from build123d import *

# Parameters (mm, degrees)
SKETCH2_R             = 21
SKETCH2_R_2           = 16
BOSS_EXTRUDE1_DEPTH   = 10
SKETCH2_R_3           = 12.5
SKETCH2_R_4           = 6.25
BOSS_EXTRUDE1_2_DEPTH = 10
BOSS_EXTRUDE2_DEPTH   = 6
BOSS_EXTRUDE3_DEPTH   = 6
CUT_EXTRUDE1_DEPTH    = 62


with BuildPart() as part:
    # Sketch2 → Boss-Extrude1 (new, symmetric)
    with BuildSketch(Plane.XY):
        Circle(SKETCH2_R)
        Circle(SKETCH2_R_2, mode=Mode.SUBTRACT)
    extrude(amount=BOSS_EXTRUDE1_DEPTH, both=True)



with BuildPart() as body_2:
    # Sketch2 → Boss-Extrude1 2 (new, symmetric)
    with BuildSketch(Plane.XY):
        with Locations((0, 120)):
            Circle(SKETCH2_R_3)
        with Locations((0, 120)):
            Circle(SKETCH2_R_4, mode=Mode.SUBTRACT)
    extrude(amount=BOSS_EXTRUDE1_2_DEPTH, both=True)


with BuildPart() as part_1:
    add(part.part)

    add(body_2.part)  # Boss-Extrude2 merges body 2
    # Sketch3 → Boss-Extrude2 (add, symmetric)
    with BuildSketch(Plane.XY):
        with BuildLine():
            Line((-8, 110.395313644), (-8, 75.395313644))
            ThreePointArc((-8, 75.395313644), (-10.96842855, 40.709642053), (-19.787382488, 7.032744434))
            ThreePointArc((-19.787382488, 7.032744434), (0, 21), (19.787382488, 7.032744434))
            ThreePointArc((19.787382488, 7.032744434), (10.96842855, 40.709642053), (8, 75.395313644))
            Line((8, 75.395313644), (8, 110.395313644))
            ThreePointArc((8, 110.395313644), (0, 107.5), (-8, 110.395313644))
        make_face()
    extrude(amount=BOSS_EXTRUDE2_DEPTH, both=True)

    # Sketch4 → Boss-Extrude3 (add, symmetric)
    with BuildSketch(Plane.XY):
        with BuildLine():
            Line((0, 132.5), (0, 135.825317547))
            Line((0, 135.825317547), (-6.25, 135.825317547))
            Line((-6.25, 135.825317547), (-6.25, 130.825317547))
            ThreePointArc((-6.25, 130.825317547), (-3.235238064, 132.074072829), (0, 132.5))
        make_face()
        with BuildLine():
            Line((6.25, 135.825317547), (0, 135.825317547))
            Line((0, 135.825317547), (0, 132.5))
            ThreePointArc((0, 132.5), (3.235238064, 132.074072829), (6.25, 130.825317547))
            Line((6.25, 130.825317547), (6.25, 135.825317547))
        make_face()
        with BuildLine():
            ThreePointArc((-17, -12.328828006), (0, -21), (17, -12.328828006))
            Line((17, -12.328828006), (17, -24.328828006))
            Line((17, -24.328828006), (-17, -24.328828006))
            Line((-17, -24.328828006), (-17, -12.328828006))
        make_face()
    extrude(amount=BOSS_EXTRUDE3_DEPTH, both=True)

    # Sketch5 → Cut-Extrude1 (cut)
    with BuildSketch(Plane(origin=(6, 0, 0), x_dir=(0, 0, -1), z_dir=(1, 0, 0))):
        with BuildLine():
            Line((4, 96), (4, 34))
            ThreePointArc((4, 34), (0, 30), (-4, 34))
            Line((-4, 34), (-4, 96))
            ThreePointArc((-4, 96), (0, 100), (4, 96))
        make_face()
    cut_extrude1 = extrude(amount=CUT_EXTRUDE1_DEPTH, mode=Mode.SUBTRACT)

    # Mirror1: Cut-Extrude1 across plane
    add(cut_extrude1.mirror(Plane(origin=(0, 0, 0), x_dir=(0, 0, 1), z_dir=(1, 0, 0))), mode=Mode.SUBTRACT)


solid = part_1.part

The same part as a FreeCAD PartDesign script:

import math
import FreeCAD as App
import Part
import Sketcher

V = App.Vector
Q = App.Units.Quantity

doc = App.newDocument("Part")
body = doc.addObject("PartDesign::Body", "Body")

# Sketch on XY plane
sketch1 = body.newObject("Sketcher::SketchObject", "Sketch")
sketch1.AttachmentSupport = (doc.getObject("XY_Plane"), [""])
sketch1.MapMode = "FlatFace"
sketch1.addGeometry(Part.Circle(V(0, 0, 0), V(0, 0, 1), 21), False)
sketch1.addGeometry(Part.Circle(V(0, 0, 0), V(0, 0, 1), 16), False)
sketch1.addConstraint(Sketcher.Constraint("Coincident", 0, 3, -1, 1))
sketch1.addConstraint(Sketcher.Constraint("Coincident", 1, 3, -1, 1))
sketch1.addConstraint(Sketcher.Constraint("Diameter", 0, Q("42 mm")))
sketch1.addConstraint(Sketcher.Constraint("Diameter", 1, Q("32 mm")))
pad1 = body.newObject("PartDesign::Pad", "Pad")
pad1.Profile = sketch1
pad1.Length = 20
pad1.Midplane = True
body2 = doc.addObject("PartDesign::Body", "Body001")

# Sketch on XY plane
sketch2 = body2.newObject("Sketcher::SketchObject", "Sketch001")
sketch2.AttachmentSupport = (doc.getObject("XY_Plane001"), [""])
sketch2.MapMode = "FlatFace"
sketch2.addGeometry(Part.Circle(V(0, 120, 0), V(0, 0, 1), 12), False)
sketch2.addGeometry(Part.Circle(V(0, 120, 0), V(0, 0, 1), 6), False)
sketch2.addConstraint(Sketcher.Constraint("Coincident", 1, 3, 0, 3))
sketch2.addConstraint(Sketcher.Constraint("PointOnObject", 0, 3, -2))
sketch2.addConstraint(Sketcher.Constraint("Diameter", 0, Q("25 mm")))
sketch2.addConstraint(Sketcher.Constraint("Diameter", 1, Q("12.5 mm")))
sketch2.addConstraint(Sketcher.Constraint("DistanceY", -1, 1, 0, 3, Q("120 mm")))
pad2 = body2.newObject("PartDesign::Pad", "Pad001")
pad2.Profile = sketch2
pad2.Length = 20
pad2.Midplane = True
body.AllowCompound = True
doc.recompute()

boolean = body.newObject("PartDesign::Boolean", "Boolean")
boolean.Type = "Fuse"
boolean.addObjects([body2])

# Sketch on XY plane
sketch3 = body.newObject("Sketcher::SketchObject", "Sketch002")
sketch3.AttachmentSupport = (doc.getObject("XY_Plane"), [""])
sketch3.MapMode = "FlatFace"
sketch3.addGeometry(Part.LineSegment(V(-8, 110, 0), V(-8, 75, 0)), False)
sketch3.addGeometry(Part.ArcOfCircle(Part.Circle(V(-212, 75, 0), V(0, 0, 1), 204), math.radians(-19.57), math.radians(0)), False)
sketch3.addGeometry(Part.ArcOfCircle(Part.Circle(V(0, 0, 0), V(0, 0, 1), 21), math.radians(20), math.radians(160)), False)
sketch3.addGeometry(Part.ArcOfCircle(Part.Circle(V(212, 75, 0), V(0, 0, 1), 204), math.radians(180), math.radians(199.57)), False)
sketch3.addGeometry(Part.LineSegment(V(8, 75, 0), V(8, 110, 0)), False)
sketch3.addGeometry(Part.ArcOfCircle(Part.Circle(V(0, 120, 0), V(0, 0, 1), 12), math.radians(-130), math.radians(-50)), False)
sketch3.addConstraint(Sketcher.Constraint("Tangent", 0, 2, 1, 2))
sketch3.addConstraint(Sketcher.Constraint("Tangent", 1, 1, 2, 2))
sketch3.addConstraint(Sketcher.Constraint("Tangent", 2, 1, 3, 2))
sketch3.addConstraint(Sketcher.Constraint("Tangent", 3, 1, 4, 1))
sketch3.addConstraint(Sketcher.Constraint("Coincident", 4, 2, 5, 2))
sketch3.addConstraint(Sketcher.Constraint("Coincident", 5, 1, 0, 1))
sketch3.addConstraint(Sketcher.Constraint("Vertical", 0))
sketch3.addConstraint(Sketcher.Constraint("Vertical", 4))
sketch3.addConstraint(Sketcher.Constraint("Coincident", 2, 3, -1, 1))
sketch3.addConstraint(Sketcher.Constraint("Equal", 1, 3))
sketch3.addConstraint(Sketcher.Constraint("Symmetric", 4, 2, 5, 1, -2))
sketch3.addConstraint(Sketcher.Constraint("Radius", 2, Q("21 mm")))
sketch3.addConstraint(Sketcher.Constraint("Radius", 5, Q("12.5 mm")))
sketch3.addConstraint(Sketcher.Constraint("DistanceY", 0, 2, 0, 1, Q("35 mm")))
sketch3.addConstraint(Sketcher.Constraint("DistanceY", -1, 1, 5, 3, Q("120 mm")))
sketch3.addConstraint(Sketcher.Constraint("DistanceX", 0, 2, -1, 1, Q("8 mm")))
pad3 = body.newObject("PartDesign::Pad", "Pad002")
pad3.Profile = sketch3
pad3.Length = 12
pad3.Midplane = True

# Sketch on XY plane
sketch4 = body.newObject("Sketcher::SketchObject", "Sketch003")
sketch4.AttachmentSupport = (doc.getObject("XY_Plane"), [""])
sketch4.MapMode = "FlatFace"
sketch4.addGeometry(Part.LineSegment(V(-6, 136, 0), V(-6, 131, 0)), False)
sketch4.addGeometry(Part.ArcOfCircle(Part.Circle(V(0, 120, 0), V(0, 0, 1), 12), math.radians(90), math.radians(120)), False)
sketch4.addGeometry(Part.ArcOfCircle(Part.Circle(V(0, 120, 0), V(0, 0, 1), 12), math.radians(60), math.radians(90)), False)
sketch4.addGeometry(Part.LineSegment(V(6, 131, 0), V(6, 136, 0)), False)
sketch4.addGeometry(Part.LineSegment(V(6, 136, 0), V(-6, 136, 0)), False)
sketch4.addGeometry(Part.ArcOfCircle(Part.Circle(V(0, 0, 0), V(0, 0, 1), 21), math.radians(-144), math.radians(-36)), False)
sketch4.addGeometry(Part.LineSegment(V(-17, -12, 0), V(-17, -24, 0)), False)
sketch4.addGeometry(Part.LineSegment(V(-17, -24, 0), V(17, -24, 0)), False)
sketch4.addGeometry(Part.LineSegment(V(17, -24, 0), V(17, -12, 0)), False)
sketch4.addConstraint(Sketcher.Constraint("Coincident", 0, 2, 1, 2))
sketch4.addConstraint(Sketcher.Constraint("Tangent", 1, 1, 2, 2))
sketch4.addConstraint(Sketcher.Constraint("Coincident", 2, 1, 3, 1))
sketch4.addConstraint(Sketcher.Constraint("Coincident", 3, 2, 4, 1))
sketch4.addConstraint(Sketcher.Constraint("Coincident", 4, 2, 0, 1))
sketch4.addConstraint(Sketcher.Constraint("Coincident", 5, 1, 6, 1))
sketch4.addConstraint(Sketcher.Constraint("Coincident", 6, 2, 7, 1))
sketch4.addConstraint(Sketcher.Constraint("Coincident", 7, 2, 8, 1))
sketch4.addConstraint(Sketcher.Constraint("Coincident", 8, 2, 5, 2))
sketch4.addConstraint(Sketcher.Constraint("Vertical", 0))
sketch4.addConstraint(Sketcher.Constraint("Vertical", 3))
sketch4.addConstraint(Sketcher.Constraint("Horizontal", 4))
sketch4.addConstraint(Sketcher.Constraint("Vertical", 6))
sketch4.addConstraint(Sketcher.Constraint("Horizontal", 7))
sketch4.addConstraint(Sketcher.Constraint("Vertical", 8))
sketch4.addConstraint(Sketcher.Constraint("Coincident", 5, 3, -1, 1))
sketch4.addConstraint(Sketcher.Constraint("Equal", 1, 2))
sketch4.addConstraint(Sketcher.Constraint("Symmetric", 0, 2, 2, 1, -2))
sketch4.addConstraint(Sketcher.Constraint("PointOnObject", 1, 1, -2))
sketch4.addConstraint(Sketcher.Constraint("Horizontal", 5, 1, 8, 2))
sketch4.addConstraint(Sketcher.Constraint("Radius", 5, Q("21 mm")))
sketch4.addConstraint(Sketcher.Constraint("Radius", 1, Q("12.5 mm")))
sketch4.addConstraint(Sketcher.Constraint("DistanceX", 7, 1, 7, 2, Q("34 mm")))
sketch4.addConstraint(Sketcher.Constraint("DistanceY", 0, 2, 0, 1, Q("5 mm")))
sketch4.addConstraint(Sketcher.Constraint("DistanceY", 6, 2, 6, 1, Q("12 mm")))
sketch4.addConstraint(Sketcher.Constraint("DistanceX", 4, 2, 4, 1, Q("12.5 mm")))
sketch4.addConstraint(Sketcher.Constraint("DistanceY", -1, 1, 1, 3, Q("120 mm")))
pad4 = body.newObject("PartDesign::Pad", "Pad003")
pad4.Profile = sketch4
pad4.Length = 12
pad4.Midplane = True

# Sketch on YZ plane
sketch5 = body.newObject("Sketcher::SketchObject", "Sketch004")
sketch5.AttachmentSupport = (doc.getObject("YZ_Plane"), [""])
sketch5.MapMode = "FlatFace"
sketch5.AttachmentOffset = App.Placement(V(0, 0, 6), App.Rotation())
sketch5.addGeometry(Part.LineSegment(V(34, -4, 0), V(96, -4, 0)), False)
sketch5.addGeometry(Part.ArcOfCircle(Part.Circle(V(96, 0, 0), V(0, 0, 1), 4), math.radians(-90), math.radians(90)), False)
sketch5.addGeometry(Part.LineSegment(V(96, 4, 0), V(34, 4, 0)), False)
sketch5.addGeometry(Part.ArcOfCircle(Part.Circle(V(34, 0, 0), V(0, 0, 1), 4), math.radians(90), math.radians(270)), False)
sketch5.addConstraint(Sketcher.Constraint("Tangent", 0, 2, 1, 1))
sketch5.addConstraint(Sketcher.Constraint("Tangent", 1, 2, 2, 1))
sketch5.addConstraint(Sketcher.Constraint("Tangent", 2, 2, 3, 1))
sketch5.addConstraint(Sketcher.Constraint("Tangent", 3, 2, 0, 1))
sketch5.addConstraint(Sketcher.Constraint("Horizontal", 0))
sketch5.addConstraint(Sketcher.Constraint("Horizontal", 2))
sketch5.addConstraint(Sketcher.Constraint("PointOnObject", 1, 3, -1))
sketch5.addConstraint(Sketcher.Constraint("Radius", 1, Q("4 mm")))
sketch5.addConstraint(Sketcher.Constraint("DistanceX", 0, 1, 0, 2, Q("62 mm")))
sketch5.addConstraint(Sketcher.Constraint("DistanceX", -1, 1, 1, 3, Q("96 mm")))
pocket1 = body.newObject("PartDesign::Pocket", "Pocket")
pocket1.Profile = sketch5
pocket1.Length = 62
pocket1.Reversed = True
doc.recompute()

mirrored = body.newObject("PartDesign::Mirrored", "Mirrored")
mirrored.Originals = [pocket1]
mirrored.MirrorPlane = (doc.getObject("YZ_Plane"), [""])
body.Tip = mirrored

doc.recompute()
